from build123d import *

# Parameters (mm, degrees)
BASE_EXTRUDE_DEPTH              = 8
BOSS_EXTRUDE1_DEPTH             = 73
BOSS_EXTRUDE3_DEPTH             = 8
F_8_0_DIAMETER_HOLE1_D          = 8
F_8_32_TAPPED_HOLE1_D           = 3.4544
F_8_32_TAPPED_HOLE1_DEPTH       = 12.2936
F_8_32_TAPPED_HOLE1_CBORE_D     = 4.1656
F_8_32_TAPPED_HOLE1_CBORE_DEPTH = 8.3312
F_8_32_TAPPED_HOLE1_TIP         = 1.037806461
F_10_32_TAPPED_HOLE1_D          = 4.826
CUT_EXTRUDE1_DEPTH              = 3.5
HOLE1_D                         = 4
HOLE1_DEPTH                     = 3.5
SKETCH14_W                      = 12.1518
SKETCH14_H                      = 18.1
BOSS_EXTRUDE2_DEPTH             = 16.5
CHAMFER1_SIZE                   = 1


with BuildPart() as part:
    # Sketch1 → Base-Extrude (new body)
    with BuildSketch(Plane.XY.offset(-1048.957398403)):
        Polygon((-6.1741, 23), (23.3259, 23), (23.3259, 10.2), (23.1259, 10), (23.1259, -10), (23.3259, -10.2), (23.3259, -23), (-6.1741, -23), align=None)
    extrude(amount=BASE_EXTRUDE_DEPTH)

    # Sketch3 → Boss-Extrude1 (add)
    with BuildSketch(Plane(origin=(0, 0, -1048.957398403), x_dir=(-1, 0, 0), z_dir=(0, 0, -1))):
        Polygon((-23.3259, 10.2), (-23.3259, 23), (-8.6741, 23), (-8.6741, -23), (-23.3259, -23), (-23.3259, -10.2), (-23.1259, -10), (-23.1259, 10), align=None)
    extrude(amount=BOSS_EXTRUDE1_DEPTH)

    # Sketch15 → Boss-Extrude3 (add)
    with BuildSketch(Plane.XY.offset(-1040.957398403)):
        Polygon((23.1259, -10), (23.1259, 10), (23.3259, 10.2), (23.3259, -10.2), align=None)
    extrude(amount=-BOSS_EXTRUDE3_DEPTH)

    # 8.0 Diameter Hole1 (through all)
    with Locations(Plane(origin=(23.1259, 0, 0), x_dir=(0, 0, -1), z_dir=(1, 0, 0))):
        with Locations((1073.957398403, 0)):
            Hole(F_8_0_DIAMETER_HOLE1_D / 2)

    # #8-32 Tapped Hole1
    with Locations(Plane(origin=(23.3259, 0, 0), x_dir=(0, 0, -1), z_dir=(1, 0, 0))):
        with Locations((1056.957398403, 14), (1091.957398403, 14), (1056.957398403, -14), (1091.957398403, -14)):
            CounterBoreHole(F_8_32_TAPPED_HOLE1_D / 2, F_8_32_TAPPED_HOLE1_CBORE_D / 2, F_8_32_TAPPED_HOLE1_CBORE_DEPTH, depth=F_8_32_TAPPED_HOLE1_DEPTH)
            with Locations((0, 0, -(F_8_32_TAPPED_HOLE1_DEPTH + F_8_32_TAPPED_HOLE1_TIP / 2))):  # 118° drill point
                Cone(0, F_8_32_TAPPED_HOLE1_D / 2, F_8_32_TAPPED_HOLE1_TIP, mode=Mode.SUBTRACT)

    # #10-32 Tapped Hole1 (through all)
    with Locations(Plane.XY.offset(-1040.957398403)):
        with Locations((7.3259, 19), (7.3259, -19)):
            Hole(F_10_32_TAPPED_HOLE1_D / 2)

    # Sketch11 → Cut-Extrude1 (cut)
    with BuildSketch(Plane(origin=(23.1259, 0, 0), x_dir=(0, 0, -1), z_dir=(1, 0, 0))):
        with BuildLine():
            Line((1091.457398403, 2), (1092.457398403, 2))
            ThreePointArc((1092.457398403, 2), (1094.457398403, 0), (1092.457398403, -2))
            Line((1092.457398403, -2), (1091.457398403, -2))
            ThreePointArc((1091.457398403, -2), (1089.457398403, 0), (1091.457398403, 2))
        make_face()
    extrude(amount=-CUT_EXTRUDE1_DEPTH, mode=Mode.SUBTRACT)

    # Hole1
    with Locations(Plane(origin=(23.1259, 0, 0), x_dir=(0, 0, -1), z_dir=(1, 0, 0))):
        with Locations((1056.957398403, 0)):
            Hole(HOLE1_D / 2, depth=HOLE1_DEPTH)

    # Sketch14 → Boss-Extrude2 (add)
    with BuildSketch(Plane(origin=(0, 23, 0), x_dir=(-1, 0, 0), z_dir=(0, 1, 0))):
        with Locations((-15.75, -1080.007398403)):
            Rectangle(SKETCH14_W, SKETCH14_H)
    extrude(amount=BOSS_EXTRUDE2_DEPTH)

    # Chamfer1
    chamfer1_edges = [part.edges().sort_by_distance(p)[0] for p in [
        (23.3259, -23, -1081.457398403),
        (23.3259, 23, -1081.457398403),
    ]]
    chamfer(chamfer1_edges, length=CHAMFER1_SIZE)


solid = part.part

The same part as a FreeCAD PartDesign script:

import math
import FreeCAD as App
import Part
import Sketcher
Q = App.Units.Quantity


def edges_at(feature, points):
    """Names of the edges that pass closest to the given points."""
    edges = feature.Shape.Edges
    near = lambda p: min(range(len(edges)), key=lambda i: edges[i].distToShape(Part.Vertex(*p))[0])
    return sorted({f"Edge{near(p) + 1}" for p in points})

doc = App.newDocument("Part")
body = doc.addObject("PartDesign::Body", "Body")

sketch1 = body.newObject("Sketcher::SketchObject", "Sketch")
sketch1.AttachmentSupport = (doc.getObject("XY_Plane"), [""])
sketch1.MapMode = "FlatFace"
sketch1.AttachmentOffset = App.Placement(App.Vector(0, 0, -1048.957398), App.Rotation())
sketch1.addGeometry([
    Part.LineSegment(App.Vector(23.33, 23, 0), App.Vector(-6.17, 23, 0)),
    Part.LineSegment(App.Vector(-6.17, 23, 0), App.Vector(-6.17, -23, 0)),
    Part.LineSegment(App.Vector(-6.17, -23, 0), App.Vector(23.33, -23, 0)),
    Part.LineSegment(App.Vector(23.33, -23, 0), App.Vector(23.33, -10.2, 0)),
    Part.LineSegment(App.Vector(23.33, -10.2, 0), App.Vector(23.13, -10, 0)),
    Part.LineSegment(App.Vector(23.13, -10, 0), App.Vector(23.13, 10, 0)),
    Part.LineSegment(App.Vector(23.13, 10, 0), App.Vector(23.33, 10.2, 0)),
    Part.LineSegment(App.Vector(23.33, 10.2, 0), App.Vector(23.33, 23, 0)),
], False)
sketch1.addConstraint([
    Sketcher.Constraint("Coincident", 0, 2, 1, 1),
    Sketcher.Constraint("Coincident", 1, 2, 2, 1),
    Sketcher.Constraint("Coincident", 2, 2, 3, 1),
    Sketcher.Constraint("Coincident", 3, 2, 4, 1),
    Sketcher.Constraint("Coincident", 4, 2, 5, 1),
    Sketcher.Constraint("Coincident", 5, 2, 6, 1),
    Sketcher.Constraint("Coincident", 6, 2, 7, 1),
    Sketcher.Constraint("Coincident", 7, 2, 0, 1),
    Sketcher.Constraint("Horizontal", 0),
    Sketcher.Constraint("Vertical", 1),
    Sketcher.Constraint("Horizontal", 2),
    Sketcher.Constraint("Vertical", 3),
    Sketcher.Constraint("Vertical", 5),
    Sketcher.Constraint("Vertical", 7),
    Sketcher.Constraint("Symmetric", 3, 2, 6, 2, -1),
    Sketcher.Constraint("Perpendicular", 4, 6),
    Sketcher.Constraint("Equal", 3, 7),
    Sketcher.Constraint("Equal", 4, 6),
    Sketcher.Constraint("DistanceY", 1, 2, 1, 1, Q("46 mm")),
    Sketcher.Constraint("DistanceY", 5, 1, 5, 2, Q("20 mm")),
    Sketcher.Constraint("DistanceX", 0, 2, 0, 1, Q("29.5 mm")),
    Sketcher.Constraint("DistanceY", 3, 1, 3, 2, Q("12.8 mm")),
    Sketcher.Constraint("DistanceX", 0, 2, -1, 1, Q("6.1741 mm")),
])
pad1 = body.newObject("PartDesign::Pad", "Pad")
pad1.Profile = sketch1
pad1.Length = 8

sketch2 = body.newObject("Sketcher::SketchObject", "Sketch001")
sketch2.AttachmentSupport = (doc.getObject("XY_Plane"), [""])
sketch2.MapMode = "FlatFace"
sketch2.AttachmentOffset = App.Placement(App.Vector(0, 0, -1048.957398), App.Rotation())
sketch2.addGeometry([
    Part.LineSegment(App.Vector(23.33, 23, 0), App.Vector(23.33, 10.2, 0)),
    Part.LineSegment(App.Vector(23.33, 10.2, 0), App.Vector(23.13, 10, 0)),
    Part.LineSegment(App.Vector(23.13, 10, 0), App.Vector(23.13, -10, 0)),
    Part.LineSegment(App.Vector(23.13, -10, 0), App.Vector(23.33, -10.2, 0)),
    Part.LineSegment(App.Vector(23.33, -10.2, 0), App.Vector(23.33, -23, 0)),
    Part.LineSegment(App.Vector(23.33, -23, 0), App.Vector(8.67, -23, 0)),
    Part.LineSegment(App.Vector(8.67, -23, 0), App.Vector(8.67, 23, 0)),
    Part.LineSegment(App.Vector(8.67, 23, 0), App.Vector(23.33, 23, 0)),
], False)
sketch2.addConstraint([
    Sketcher.Constraint("Coincident", 0, 2, 1, 1),
    Sketcher.Constraint("Coincident", 1, 2, 2, 1),
    Sketcher.Constraint("Coincident", 2, 2, 3, 1),
    Sketcher.Constraint("Coincident", 3, 2, 4, 1),
    Sketcher.Constraint("Coincident", 4, 2, 5, 1),
    Sketcher.Constraint("Coincident", 5, 2, 6, 1),
    Sketcher.Constraint("Coincident", 6, 2, 7, 1),
    Sketcher.Constraint("Coincident", 7, 2, 0, 1),
    Sketcher.Constraint("Vertical", 0),
    Sketcher.Constraint("Vertical", 2),
    Sketcher.Constraint("Vertical", 4),
    Sketcher.Constraint("Horizontal", 5),
    Sketcher.Constraint("Vertical", 6),
    Sketcher.Constraint("Horizontal", 7),
    Sketcher.Constraint("Symmetric", 0, 2, 3, 2, -1),
    Sketcher.Constraint("Perpendicular", 1, 3),
    Sketcher.Constraint("Equal", 0, 4),
    Sketcher.Constraint("Equal", 1, 3),
    Sketcher.Constraint("DistanceY", 2, 2, 2, 1, Q("20 mm")),
    Sketcher.Constraint("DistanceY", 6, 1, 6, 2, Q("46 mm")),
    Sketcher.Constraint("DistanceY", 0, 2, 0, 1, Q("12.8 mm")),
    Sketcher.Constraint("DistanceX", 5, 2, 5, 1, Q("14.6518 mm")),
    Sketcher.Constraint("DistanceX", -1, 1, 0, 2, Q("23.3259 mm")),
])
pad2 = body.newObject("PartDesign::Pad", "Pad001")
pad2.Profile = sketch2
pad2.Length = 73
pad2.Reversed = True

sketch3 = body.newObject("Sketcher::SketchObject", "Sketch002")
sketch3.AttachmentSupport = (doc.getObject("XY_Plane"), [""])
sketch3.MapMode = "FlatFace"
sketch3.AttachmentOffset = App.Placement(App.Vector(0, 0, -1040.957398), App.Rotation())
sketch3.addGeometry([
    Part.LineSegment(App.Vector(23.13, 10, 0), App.Vector(23.13, -10, 0)),
    Part.LineSegment(App.Vector(23.13, -10, 0), App.Vector(23.33, -10.2, 0)),
    Part.LineSegment(App.Vector(23.33, -10.2, 0), App.Vector(23.33, 10.2, 0)),
    Part.LineSegment(App.Vector(23.33, 10.2, 0), App.Vector(23.13, 10, 0)),
], False)
sketch3.addConstraint([
    Sketcher.Constraint("Coincident", 0, 2, 1, 1),
    Sketcher.Constraint("Coincident", 1, 2, 2, 1),
    Sketcher.Constraint("Coincident", 2, 2, 3, 1),
    Sketcher.Constraint("Coincident", 3, 2, 0, 1),
    Sketcher.Constraint("Vertical", 0),
    Sketcher.Constraint("Vertical", 2),
    Sketcher.Constraint("Perpendicular", 1, 3),
    Sketcher.Constraint("Equal", 1, 3),
    Sketcher.Constraint("DistanceY", 0, 2, 0, 1, Q("20 mm")),
    Sketcher.Constraint("DistanceY", 2, 1, 2, 2, Q("20.4 mm")),
    Sketcher.Constraint("DistanceY", 0, 2, -1, 1, Q("10 mm")),
    Sketcher.Constraint("DistanceX", -1, 1, 0, 2, Q("23.1259 mm")),
])
pad3 = body.newObject("PartDesign::Pad", "Pad002")
pad3.Profile = sketch3
pad3.Length = 8
pad3.Reversed = True

sketch4 = body.newObject("Sketcher::SketchObject", "Sketch003")
sketch4.AttachmentSupport = (doc.getObject("YZ_Plane"), [""])
sketch4.MapMode = "FlatFace"
sketch4.AttachmentOffset = App.Placement(App.Vector(0, 0, 23.1259), App.Rotation())
sketch4.addGeometry(Part.Circle(App.Vector(0, -1074, 0), App.Vector(0, 0, 1), 4), False)
sketch4.addConstraint([
    Sketcher.Constraint("PointOnObject", 0, 3, -2),
    Sketcher.Constraint("Diameter", 0, Q("8 mm")),
    Sketcher.Constraint("DistanceY", 0, 3, -1, 1, Q("1073.957398 mm")),
])
doc.recompute()
hole = body.newObject("PartDesign::Hole", "Hole")
hole.Profile = sketch4
hole.ThreadType = "None"
hole.Diameter = 8
hole.DepthType = "ThroughAll"

sketch5 = body.newObject("Sketcher::SketchObject", "Sketch004")
sketch5.AttachmentSupport = (doc.getObject("YZ_Plane"), [""])
sketch5.MapMode = "FlatFace"
sketch5.AttachmentOffset = App.Placement(App.Vector(0, 0, 23.3259), App.Rotation())
sketch5.addGeometry([
    Part.Circle(App.Vector(14, -1057, 0), App.Vector(0, 0, 1), 1.7),
    Part.Circle(App.Vector(14, -1092, 0), App.Vector(0, 0, 1), 1.7),
    Part.Circle(App.Vector(-14, -1057, 0), App.Vector(0, 0, 1), 1.7),
    Part.Circle(App.Vector(-14, -1092, 0), App.Vector(0, 0, 1), 1.7),
], False)
sketch5.addConstraint([
    Sketcher.Constraint("Equal", 0, 1),
    Sketcher.Constraint("Equal", 1, 2),
    Sketcher.Constraint("Equal", 2, 3),
    Sketcher.Constraint("Symmetric", 0, 3, 2, 3, -2),
    Sketcher.Constraint("Symmetric", 1, 3, 3, 3, -2),
    Sketcher.Constraint("Vertical", 0, 3, 1, 3),
    Sketcher.Constraint("DistanceX", -1, 1, 0, 3, Q("14 mm")),
    Sketcher.Constraint("DistanceY", 1, 3, 0, 3, Q("35 mm")),
    Sketcher.Constraint("Diameter", 0, Q("3.4544 mm")),
    Sketcher.Constraint("DistanceY", 0, 3, -1, 1, Q("1056.957398 mm")),
])
doc.recompute()
hole2 = body.newObject("PartDesign::Hole", "Hole001")
hole2.Profile = sketch5
hole2.ThreadType = "None"
hole2.Diameter = 3.4544
hole2.DepthType = "Dimension"
hole2.Depth = 12.2936
hole2.DrillPoint = "Angled"
hole2.DrillPointAngle = 118
hole2.HoleCutType = "Counterbore"
hole2.HoleCutDiameter = 4.1656
hole2.HoleCutDepth = 8.3312

sketch6 = body.newObject("Sketcher::SketchObject", "Sketch005")
sketch6.AttachmentSupport = (doc.getObject("XY_Plane"), [""])
sketch6.MapMode = "FlatFace"
sketch6.AttachmentOffset = App.Placement(App.Vector(0, 0, -1040.957398), App.Rotation())
sketch6.addGeometry([
    Part.Circle(App.Vector(7.3, 19, 0), App.Vector(0, 0, 1), 2.4),
    Part.Circle(App.Vector(7.3, -19, 0), App.Vector(0, 0, 1), 2.4),
], False)
sketch6.addConstraint([
    Sketcher.Constraint("Equal", 0, 1),
    Sketcher.Constraint("Symmetric", 0, 3, 1, 3, -1),
    Sketcher.Constraint("Diameter", 0, Q("4.826 mm")),
    Sketcher.Constraint("DistanceY", -1, 1, 0, 3, Q("19 mm")),
    Sketcher.Constraint("DistanceX", -1, 1, 0, 3, Q("7.3259 mm")),
])
doc.recompute()
hole3 = body.newObject("PartDesign::Hole", "Hole002")
hole3.Profile = sketch6
hole3.ThreadType = "None"
hole3.Diameter = 4.826
hole3.DepthType = "ThroughAll"

sketch7 = body.newObject("Sketcher::SketchObject", "Sketch006")
sketch7.AttachmentSupport = (doc.getObject("YZ_Plane"), [""])
sketch7.MapMode = "FlatFace"
sketch7.AttachmentOffset = App.Placement(App.Vector(0, 0, 23.1259), App.Rotation())
sketch7.addGeometry([
    Part.LineSegment(App.Vector(2, -1092.5, 0), App.Vector(2, -1091.5, 0)),
    Part.ArcOfCircle(Part.Circle(App.Vector(0, -1091.5, 0), App.Vector(0, 0, 1), 2), math.radians(0), math.radians(180)),
    Part.LineSegment(App.Vector(-2, -1091.5, 0), App.Vector(-2, -1092.5, 0)),
    Part.ArcOfCircle(Part.Circle(App.Vector(0, -1092.5, 0), App.Vector(0, 0, 1), 2), math.radians(180), math.radians(360)),
], False)
sketch7.addConstraint([
    Sketcher.Constraint("Tangent", 0, 2, 1, 1),
    Sketcher.Constraint("Tangent", 1, 2, 2, 1),
    Sketcher.Constraint("Tangent", 2, 2, 3, 1),
    Sketcher.Constraint("Tangent", 3, 2, 0, 1),
    Sketcher.Constraint("Vertical", 0),
    Sketcher.Constraint("Vertical", 2),
    Sketcher.Constraint("PointOnObject", 1, 3, -2),
    Sketcher.Constraint("Radius", 1, Q("2 mm")),
    Sketcher.Constraint("DistanceY", 0, 1, 0, 2, Q("1 mm")),
    Sketcher.Constraint("DistanceY", 1, 3, -1, 1, Q("1091.457398 mm")),
])
pocket1 = body.newObject("PartDesign::Pocket", "Pocket")
pocket1.Profile = sketch7
pocket1.Length = 3.5

sketch8 = body.newObject("Sketcher::SketchObject", "Sketch007")
sketch8.AttachmentSupport = (doc.getObject("YZ_Plane"), [""])
sketch8.MapMode = "FlatFace"
sketch8.AttachmentOffset = App.Placement(App.Vector(0, 0, 23.1259), App.Rotation())
sketch8.addGeometry(Part.Circle(App.Vector(0, -1057, 0), App.Vector(0, 0, 1), 2), False)
sketch8.addConstraint([
    Sketcher.Constraint("PointOnObject", 0, 3, -2),
    Sketcher.Constraint("Diameter", 0, Q("4 mm")),
    Sketcher.Constraint("DistanceY", 0, 3, -1, 1, Q("1056.957398 mm")),
])
doc.recompute()
hole4 = body.newObject("PartDesign::Hole", "Hole003")
hole4.Profile = sketch8
hole4.ThreadType = "None"
hole4.Diameter = 4
hole4.DepthType = "Dimension"
hole4.Depth = 3.5
hole4.DrillPoint = "Flat"

sketch9 = body.newObject("Sketcher::SketchObject", "Sketch008")
sketch9.AttachmentSupport = (doc.getObject("XZ_Plane"), [""])
sketch9.MapMode = "FlatFace"
sketch9.AttachmentOffset = App.Placement(App.Vector(0, 0, -23), App.Rotation())
sketch9.addGeometry([
    Part.LineSegment(App.Vector(22, -1071, 0), App.Vector(22, -1089, 0)),
    Part.LineSegment(App.Vector(22, -1089, 0), App.Vector(10, -1089, 0)),
    Part.LineSegment(App.Vector(10, -1089, 0), App.Vector(10, -1071, 0)),
    Part.LineSegment(App.Vector(10, -1071, 0), App.Vector(22, -1071, 0)),
], False)
sketch9.addConstraint([
    Sketcher.Constraint("Coincident", 0, 2, 1, 1),
    Sketcher.Constraint("Coincident", 1, 2, 2, 1),
    Sketcher.Constraint("Coincident", 2, 2, 3, 1),
    Sketcher.Constraint("Coincident", 3, 2, 0, 1),
    Sketcher.Constraint("Vertical", 0),
    Sketcher.Constraint("Horizontal", 1),
    Sketcher.Constraint("Vertical", 2),
    Sketcher.Constraint("Horizontal", 3),
    Sketcher.Constraint("DistanceY", 0, 2, 0, 1, Q("18.1 mm")),
    Sketcher.Constraint("DistanceX", 1, 2, 1, 1, Q("12.1518 mm")),
    Sketcher.Constraint("DistanceX", -1, 1, 0, 2, Q("21.8259 mm")),
    Sketcher.Constraint("DistanceY", 0, 2, -1, 1, Q("1089.057398 mm")),
])
pad4 = body.newObject("PartDesign::Pad", "Pad003")
pad4.Profile = sketch9
pad4.Length = 16.5
pad4.Reversed = True
doc.recompute()

chamfer = body.newObject("PartDesign::Chamfer", "Chamfer")
chamfer.Base = (pad4, edges_at(pad4, [(23.326, -23, -1081.457), (23.326, 23, -1081.457)]))
chamfer.Size = 1

doc.recompute()
